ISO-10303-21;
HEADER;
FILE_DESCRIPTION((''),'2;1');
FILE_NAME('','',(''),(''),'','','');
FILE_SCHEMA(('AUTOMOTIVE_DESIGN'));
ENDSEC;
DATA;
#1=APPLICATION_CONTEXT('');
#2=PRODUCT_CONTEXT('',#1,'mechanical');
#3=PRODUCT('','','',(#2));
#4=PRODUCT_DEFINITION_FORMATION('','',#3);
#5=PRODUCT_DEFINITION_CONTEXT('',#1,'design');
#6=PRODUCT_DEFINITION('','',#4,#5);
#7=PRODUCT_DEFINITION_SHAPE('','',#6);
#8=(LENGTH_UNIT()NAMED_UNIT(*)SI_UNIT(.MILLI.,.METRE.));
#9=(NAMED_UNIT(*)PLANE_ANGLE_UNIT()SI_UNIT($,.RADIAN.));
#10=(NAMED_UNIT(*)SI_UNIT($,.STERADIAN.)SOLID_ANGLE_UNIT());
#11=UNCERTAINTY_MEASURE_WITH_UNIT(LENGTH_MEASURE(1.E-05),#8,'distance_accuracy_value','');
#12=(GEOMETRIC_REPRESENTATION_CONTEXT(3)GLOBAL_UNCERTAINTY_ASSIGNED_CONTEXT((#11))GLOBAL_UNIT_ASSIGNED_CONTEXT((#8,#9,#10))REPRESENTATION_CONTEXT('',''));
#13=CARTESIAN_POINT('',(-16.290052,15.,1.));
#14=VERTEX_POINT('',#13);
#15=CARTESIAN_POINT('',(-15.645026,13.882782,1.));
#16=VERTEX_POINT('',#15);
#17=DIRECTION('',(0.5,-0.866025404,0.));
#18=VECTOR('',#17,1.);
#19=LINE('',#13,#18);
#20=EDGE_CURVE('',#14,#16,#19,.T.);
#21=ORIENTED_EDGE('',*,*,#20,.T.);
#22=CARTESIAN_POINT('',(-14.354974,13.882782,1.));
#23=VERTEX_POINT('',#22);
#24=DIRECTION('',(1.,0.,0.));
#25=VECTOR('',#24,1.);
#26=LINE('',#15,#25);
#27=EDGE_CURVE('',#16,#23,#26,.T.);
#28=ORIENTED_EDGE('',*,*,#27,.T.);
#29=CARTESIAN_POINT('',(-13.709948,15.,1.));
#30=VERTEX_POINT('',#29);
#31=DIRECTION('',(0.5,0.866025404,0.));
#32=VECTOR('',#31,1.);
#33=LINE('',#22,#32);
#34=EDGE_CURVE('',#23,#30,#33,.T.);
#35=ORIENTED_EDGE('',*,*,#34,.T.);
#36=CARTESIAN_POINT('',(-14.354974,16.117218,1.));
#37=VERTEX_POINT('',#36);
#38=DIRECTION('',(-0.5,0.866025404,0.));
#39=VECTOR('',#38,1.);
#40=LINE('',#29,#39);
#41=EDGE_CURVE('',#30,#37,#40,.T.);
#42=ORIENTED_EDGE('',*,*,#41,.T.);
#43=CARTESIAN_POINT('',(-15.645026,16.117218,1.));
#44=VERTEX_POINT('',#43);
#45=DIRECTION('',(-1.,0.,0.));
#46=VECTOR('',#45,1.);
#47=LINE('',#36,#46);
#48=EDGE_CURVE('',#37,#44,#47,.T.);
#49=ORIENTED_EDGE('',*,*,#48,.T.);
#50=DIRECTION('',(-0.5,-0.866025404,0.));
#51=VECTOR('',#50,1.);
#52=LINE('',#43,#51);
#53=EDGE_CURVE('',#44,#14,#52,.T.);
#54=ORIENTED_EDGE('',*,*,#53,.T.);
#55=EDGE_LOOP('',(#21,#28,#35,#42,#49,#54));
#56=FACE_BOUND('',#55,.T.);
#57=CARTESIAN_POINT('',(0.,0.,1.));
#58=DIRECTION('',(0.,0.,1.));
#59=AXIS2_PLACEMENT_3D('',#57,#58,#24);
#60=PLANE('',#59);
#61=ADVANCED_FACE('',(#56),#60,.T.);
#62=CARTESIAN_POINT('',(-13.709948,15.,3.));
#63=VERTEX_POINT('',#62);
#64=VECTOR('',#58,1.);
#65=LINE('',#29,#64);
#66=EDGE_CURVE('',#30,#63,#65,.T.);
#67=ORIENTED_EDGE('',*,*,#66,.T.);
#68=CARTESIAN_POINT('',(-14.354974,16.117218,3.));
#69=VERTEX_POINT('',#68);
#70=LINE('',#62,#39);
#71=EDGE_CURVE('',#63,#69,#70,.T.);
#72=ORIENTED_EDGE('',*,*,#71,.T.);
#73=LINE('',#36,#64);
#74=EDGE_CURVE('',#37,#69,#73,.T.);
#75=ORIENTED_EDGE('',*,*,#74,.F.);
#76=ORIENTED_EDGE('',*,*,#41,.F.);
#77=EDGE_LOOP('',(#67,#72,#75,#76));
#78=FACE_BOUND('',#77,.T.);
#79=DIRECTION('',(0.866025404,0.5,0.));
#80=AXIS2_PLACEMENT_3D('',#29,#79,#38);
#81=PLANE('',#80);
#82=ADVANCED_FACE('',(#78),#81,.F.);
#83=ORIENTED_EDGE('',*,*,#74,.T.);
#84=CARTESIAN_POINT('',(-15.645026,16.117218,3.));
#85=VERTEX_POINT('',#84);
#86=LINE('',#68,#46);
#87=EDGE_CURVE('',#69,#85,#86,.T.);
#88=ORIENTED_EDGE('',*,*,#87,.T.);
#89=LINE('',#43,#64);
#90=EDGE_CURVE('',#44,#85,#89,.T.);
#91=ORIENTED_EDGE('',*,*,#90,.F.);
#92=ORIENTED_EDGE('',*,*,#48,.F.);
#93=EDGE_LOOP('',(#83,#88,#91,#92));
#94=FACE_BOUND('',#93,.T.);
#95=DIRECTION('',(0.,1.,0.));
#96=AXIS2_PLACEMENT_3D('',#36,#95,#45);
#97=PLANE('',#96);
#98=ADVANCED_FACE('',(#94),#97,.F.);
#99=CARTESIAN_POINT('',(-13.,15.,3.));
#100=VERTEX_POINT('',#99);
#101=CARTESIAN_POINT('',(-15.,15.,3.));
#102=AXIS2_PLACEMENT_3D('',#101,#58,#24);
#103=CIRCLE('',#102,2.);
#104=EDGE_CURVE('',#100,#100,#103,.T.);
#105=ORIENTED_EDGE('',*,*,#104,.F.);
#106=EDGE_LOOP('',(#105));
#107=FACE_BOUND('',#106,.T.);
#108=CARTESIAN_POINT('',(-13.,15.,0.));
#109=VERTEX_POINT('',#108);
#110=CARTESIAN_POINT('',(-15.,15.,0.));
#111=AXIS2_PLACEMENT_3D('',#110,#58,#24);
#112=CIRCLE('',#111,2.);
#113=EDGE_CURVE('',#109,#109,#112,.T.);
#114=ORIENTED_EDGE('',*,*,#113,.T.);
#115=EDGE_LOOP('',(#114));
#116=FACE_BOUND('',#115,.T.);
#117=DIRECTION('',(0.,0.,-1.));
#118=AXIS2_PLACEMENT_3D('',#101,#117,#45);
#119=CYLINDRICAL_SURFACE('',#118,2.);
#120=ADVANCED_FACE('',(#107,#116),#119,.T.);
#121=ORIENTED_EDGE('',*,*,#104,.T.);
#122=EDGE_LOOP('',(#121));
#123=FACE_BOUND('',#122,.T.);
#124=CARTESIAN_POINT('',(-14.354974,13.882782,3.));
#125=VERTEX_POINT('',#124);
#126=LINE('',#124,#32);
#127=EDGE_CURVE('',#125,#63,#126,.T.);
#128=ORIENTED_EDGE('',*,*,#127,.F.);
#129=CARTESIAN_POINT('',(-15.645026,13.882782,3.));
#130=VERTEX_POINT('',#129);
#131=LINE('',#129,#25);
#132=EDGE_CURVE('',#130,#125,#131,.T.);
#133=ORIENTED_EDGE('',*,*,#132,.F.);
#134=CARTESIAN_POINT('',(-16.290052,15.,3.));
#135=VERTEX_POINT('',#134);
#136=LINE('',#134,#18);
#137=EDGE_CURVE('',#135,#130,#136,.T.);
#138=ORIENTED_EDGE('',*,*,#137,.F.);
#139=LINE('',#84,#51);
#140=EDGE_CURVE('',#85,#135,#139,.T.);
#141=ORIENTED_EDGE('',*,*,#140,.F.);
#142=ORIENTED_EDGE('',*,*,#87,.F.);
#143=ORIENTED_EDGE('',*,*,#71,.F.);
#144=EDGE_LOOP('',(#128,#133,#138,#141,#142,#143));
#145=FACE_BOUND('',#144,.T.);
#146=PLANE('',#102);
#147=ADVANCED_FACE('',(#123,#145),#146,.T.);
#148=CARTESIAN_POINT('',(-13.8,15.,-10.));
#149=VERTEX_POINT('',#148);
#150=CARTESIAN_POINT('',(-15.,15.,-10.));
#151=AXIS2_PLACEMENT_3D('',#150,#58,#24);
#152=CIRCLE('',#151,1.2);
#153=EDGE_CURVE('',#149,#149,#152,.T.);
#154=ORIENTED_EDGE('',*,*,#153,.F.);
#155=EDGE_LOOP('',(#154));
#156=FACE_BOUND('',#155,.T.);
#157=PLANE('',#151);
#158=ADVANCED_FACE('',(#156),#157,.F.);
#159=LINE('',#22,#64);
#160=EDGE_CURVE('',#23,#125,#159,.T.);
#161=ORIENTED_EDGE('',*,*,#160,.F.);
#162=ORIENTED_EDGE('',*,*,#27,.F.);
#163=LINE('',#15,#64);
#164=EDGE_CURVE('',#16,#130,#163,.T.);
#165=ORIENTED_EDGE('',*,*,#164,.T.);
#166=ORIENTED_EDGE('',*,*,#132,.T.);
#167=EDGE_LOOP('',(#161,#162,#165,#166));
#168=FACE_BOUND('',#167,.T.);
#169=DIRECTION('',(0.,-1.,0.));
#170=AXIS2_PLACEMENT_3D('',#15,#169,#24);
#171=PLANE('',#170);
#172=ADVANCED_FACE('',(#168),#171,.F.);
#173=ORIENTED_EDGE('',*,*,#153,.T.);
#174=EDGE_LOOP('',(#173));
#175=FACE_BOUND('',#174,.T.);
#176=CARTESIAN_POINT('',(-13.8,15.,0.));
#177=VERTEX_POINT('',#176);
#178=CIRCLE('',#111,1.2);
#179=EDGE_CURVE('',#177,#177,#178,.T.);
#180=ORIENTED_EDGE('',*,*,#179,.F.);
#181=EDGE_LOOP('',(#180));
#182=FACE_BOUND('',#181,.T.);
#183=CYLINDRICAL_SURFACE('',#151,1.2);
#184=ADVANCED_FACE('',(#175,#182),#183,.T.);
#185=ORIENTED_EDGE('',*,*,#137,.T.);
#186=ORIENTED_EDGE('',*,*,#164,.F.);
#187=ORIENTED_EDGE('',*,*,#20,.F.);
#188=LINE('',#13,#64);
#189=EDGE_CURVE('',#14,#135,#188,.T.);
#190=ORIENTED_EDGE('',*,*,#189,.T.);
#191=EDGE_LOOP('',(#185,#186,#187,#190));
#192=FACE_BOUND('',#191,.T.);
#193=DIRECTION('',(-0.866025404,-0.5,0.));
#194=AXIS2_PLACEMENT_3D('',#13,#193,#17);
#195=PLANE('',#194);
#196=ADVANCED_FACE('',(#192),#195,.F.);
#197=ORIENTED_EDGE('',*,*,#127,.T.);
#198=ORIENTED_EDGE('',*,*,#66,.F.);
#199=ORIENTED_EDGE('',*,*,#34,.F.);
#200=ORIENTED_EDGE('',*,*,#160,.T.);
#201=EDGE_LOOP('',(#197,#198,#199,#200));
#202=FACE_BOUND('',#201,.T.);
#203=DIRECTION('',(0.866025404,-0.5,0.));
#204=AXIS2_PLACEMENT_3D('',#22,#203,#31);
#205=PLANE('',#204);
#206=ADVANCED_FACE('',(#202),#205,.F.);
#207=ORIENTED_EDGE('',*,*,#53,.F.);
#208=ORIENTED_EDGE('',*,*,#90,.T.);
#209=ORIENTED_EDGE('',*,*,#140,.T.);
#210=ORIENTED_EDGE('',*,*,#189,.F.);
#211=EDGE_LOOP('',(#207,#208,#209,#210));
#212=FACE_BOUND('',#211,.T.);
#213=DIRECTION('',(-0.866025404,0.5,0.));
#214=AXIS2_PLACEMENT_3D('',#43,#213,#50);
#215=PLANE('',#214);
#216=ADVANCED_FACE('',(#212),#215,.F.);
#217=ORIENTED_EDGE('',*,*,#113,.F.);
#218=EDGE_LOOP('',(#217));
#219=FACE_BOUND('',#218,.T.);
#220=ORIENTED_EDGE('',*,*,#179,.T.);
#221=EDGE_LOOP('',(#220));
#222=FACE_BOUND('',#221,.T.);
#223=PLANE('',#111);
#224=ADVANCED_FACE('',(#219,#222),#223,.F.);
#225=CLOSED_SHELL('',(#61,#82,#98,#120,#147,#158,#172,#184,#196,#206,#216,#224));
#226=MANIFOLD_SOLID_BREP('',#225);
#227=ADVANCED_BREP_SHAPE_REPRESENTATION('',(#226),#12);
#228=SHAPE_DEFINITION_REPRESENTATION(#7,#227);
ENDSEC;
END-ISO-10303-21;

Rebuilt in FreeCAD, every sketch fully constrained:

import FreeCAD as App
import Part
import Sketcher

V = App.Vector
Q = App.Units.Quantity


def add_polygon(sketch, points):
    """Adds a closed chain of lines whose ends are joined by coincident constraints."""
    first, n = sketch.GeometryCount, len(points)
    for a, b in zip(points, points[1:] + points[:1]):
        sketch.addGeometry(Part.LineSegment(App.Vector(*a, 0), App.Vector(*b, 0)), False)
    for i in range(n):
        sketch.addConstraint(Sketcher.Constraint("Coincident", first + i, 2, first + (i + 1) % n, 1))

doc = App.newDocument("Part")
body = doc.addObject("PartDesign::Body", "Body")

sketch1 = doc.addObject("Sketcher::SketchObject", "Sketch")
body.addObject(sketch1)
sketch1.AttachmentSupport = (doc.XY_Plane, [""])
sketch1.MapMode = "FlatFace"
sketch1.addGeometry(Part.Circle(V(-15, 15, 0), V(0, 0, 1), 1.2), False)
sketch1.addConstraint([
    Sketcher.Constraint("Diameter", 0, Q("2.4 mm")),
    Sketcher.Constraint("DistanceX", 0, 3, -1, 1, Q("15 mm")),
    Sketcher.Constraint("DistanceY", -1, 1, 0, 3, Q("15 mm")),
])
pad1 = doc.addObject("PartDesign::Pad", "Pad")
body.addObject(pad1)
pad1.Profile = sketch1
pad1.Length = 10
pad1.Reversed = True

sketch2 = doc.addObject("Sketcher::SketchObject", "Sketch001")
body.addObject(sketch2)
sketch2.AttachmentSupport = (doc.XY_Plane, [""])
sketch2.MapMode = "FlatFace"
sketch2.addGeometry(Part.Circle(V(-15, 15, 0), V(0, 0, 1), 2), False)
sketch2.addConstraint([
    Sketcher.Constraint("Diameter", 0, Q("4 mm")),
    Sketcher.Constraint("DistanceX", 0, 3, -1, 1, Q("15 mm")),
    Sketcher.Constraint("DistanceY", -1, 1, 0, 3, Q("15 mm")),
])
pad2 = doc.addObject("PartDesign::Pad", "Pad001")
body.addObject(pad2)
pad2.Profile = sketch2
pad2.Length = 3

sketch3 = doc.addObject("Sketcher::SketchObject", "Sketch002")
body.addObject(sketch3)
sketch3.AttachmentSupport = (doc.XY_Plane, [""])
sketch3.MapMode = "FlatFace"
sketch3.AttachmentOffset = App.Placement(V(0, 0, 3), App.Rotation())
add_polygon(sketch3, [(-13.709948, 15), (-14.354974, 16.117218), (-15.645026, 16.117218), (-16.290052, 15), (-15.645026, 13.882782), (-14.354974, 13.882782)])
sketch3.addConstraint([
    Sketcher.Constraint("Horizontal", 1),
    Sketcher.Constraint("Horizontal", 4),
    Sketcher.Constraint("Parallel", 0, 3),
    Sketcher.Constraint("Parallel", 2, 5),
    Sketcher.Constraint("Horizontal", 2, 2, 5, 2),
    Sketcher.Constraint("Vertical", 1, 2, 3, 2),
    Sketcher.Constraint("Vertical", 0, 2, 4, 2),
    Sketcher.Constraint("Angle", 0, Q("120 deg")),
    Sketcher.Constraint("DistanceY", -1, 1, 2, 2, Q("15 mm")),
    Sketcher.Constraint("DistanceX", 1, 2, 1, 1, Q("1.290052 mm")),
    Sketcher.Constraint("DistanceY", -1, 1, 0, 2, Q("16.117218 mm")),
    Sketcher.Constraint("DistanceX", 0, 2, -1, 1, Q("14.354974 mm")),
])
pocket1 = doc.addObject("PartDesign::Pocket", "Pocket")
body.addObject(pocket1)
pocket1.Profile = sketch3
pocket1.Length = 2

doc.recompute()
